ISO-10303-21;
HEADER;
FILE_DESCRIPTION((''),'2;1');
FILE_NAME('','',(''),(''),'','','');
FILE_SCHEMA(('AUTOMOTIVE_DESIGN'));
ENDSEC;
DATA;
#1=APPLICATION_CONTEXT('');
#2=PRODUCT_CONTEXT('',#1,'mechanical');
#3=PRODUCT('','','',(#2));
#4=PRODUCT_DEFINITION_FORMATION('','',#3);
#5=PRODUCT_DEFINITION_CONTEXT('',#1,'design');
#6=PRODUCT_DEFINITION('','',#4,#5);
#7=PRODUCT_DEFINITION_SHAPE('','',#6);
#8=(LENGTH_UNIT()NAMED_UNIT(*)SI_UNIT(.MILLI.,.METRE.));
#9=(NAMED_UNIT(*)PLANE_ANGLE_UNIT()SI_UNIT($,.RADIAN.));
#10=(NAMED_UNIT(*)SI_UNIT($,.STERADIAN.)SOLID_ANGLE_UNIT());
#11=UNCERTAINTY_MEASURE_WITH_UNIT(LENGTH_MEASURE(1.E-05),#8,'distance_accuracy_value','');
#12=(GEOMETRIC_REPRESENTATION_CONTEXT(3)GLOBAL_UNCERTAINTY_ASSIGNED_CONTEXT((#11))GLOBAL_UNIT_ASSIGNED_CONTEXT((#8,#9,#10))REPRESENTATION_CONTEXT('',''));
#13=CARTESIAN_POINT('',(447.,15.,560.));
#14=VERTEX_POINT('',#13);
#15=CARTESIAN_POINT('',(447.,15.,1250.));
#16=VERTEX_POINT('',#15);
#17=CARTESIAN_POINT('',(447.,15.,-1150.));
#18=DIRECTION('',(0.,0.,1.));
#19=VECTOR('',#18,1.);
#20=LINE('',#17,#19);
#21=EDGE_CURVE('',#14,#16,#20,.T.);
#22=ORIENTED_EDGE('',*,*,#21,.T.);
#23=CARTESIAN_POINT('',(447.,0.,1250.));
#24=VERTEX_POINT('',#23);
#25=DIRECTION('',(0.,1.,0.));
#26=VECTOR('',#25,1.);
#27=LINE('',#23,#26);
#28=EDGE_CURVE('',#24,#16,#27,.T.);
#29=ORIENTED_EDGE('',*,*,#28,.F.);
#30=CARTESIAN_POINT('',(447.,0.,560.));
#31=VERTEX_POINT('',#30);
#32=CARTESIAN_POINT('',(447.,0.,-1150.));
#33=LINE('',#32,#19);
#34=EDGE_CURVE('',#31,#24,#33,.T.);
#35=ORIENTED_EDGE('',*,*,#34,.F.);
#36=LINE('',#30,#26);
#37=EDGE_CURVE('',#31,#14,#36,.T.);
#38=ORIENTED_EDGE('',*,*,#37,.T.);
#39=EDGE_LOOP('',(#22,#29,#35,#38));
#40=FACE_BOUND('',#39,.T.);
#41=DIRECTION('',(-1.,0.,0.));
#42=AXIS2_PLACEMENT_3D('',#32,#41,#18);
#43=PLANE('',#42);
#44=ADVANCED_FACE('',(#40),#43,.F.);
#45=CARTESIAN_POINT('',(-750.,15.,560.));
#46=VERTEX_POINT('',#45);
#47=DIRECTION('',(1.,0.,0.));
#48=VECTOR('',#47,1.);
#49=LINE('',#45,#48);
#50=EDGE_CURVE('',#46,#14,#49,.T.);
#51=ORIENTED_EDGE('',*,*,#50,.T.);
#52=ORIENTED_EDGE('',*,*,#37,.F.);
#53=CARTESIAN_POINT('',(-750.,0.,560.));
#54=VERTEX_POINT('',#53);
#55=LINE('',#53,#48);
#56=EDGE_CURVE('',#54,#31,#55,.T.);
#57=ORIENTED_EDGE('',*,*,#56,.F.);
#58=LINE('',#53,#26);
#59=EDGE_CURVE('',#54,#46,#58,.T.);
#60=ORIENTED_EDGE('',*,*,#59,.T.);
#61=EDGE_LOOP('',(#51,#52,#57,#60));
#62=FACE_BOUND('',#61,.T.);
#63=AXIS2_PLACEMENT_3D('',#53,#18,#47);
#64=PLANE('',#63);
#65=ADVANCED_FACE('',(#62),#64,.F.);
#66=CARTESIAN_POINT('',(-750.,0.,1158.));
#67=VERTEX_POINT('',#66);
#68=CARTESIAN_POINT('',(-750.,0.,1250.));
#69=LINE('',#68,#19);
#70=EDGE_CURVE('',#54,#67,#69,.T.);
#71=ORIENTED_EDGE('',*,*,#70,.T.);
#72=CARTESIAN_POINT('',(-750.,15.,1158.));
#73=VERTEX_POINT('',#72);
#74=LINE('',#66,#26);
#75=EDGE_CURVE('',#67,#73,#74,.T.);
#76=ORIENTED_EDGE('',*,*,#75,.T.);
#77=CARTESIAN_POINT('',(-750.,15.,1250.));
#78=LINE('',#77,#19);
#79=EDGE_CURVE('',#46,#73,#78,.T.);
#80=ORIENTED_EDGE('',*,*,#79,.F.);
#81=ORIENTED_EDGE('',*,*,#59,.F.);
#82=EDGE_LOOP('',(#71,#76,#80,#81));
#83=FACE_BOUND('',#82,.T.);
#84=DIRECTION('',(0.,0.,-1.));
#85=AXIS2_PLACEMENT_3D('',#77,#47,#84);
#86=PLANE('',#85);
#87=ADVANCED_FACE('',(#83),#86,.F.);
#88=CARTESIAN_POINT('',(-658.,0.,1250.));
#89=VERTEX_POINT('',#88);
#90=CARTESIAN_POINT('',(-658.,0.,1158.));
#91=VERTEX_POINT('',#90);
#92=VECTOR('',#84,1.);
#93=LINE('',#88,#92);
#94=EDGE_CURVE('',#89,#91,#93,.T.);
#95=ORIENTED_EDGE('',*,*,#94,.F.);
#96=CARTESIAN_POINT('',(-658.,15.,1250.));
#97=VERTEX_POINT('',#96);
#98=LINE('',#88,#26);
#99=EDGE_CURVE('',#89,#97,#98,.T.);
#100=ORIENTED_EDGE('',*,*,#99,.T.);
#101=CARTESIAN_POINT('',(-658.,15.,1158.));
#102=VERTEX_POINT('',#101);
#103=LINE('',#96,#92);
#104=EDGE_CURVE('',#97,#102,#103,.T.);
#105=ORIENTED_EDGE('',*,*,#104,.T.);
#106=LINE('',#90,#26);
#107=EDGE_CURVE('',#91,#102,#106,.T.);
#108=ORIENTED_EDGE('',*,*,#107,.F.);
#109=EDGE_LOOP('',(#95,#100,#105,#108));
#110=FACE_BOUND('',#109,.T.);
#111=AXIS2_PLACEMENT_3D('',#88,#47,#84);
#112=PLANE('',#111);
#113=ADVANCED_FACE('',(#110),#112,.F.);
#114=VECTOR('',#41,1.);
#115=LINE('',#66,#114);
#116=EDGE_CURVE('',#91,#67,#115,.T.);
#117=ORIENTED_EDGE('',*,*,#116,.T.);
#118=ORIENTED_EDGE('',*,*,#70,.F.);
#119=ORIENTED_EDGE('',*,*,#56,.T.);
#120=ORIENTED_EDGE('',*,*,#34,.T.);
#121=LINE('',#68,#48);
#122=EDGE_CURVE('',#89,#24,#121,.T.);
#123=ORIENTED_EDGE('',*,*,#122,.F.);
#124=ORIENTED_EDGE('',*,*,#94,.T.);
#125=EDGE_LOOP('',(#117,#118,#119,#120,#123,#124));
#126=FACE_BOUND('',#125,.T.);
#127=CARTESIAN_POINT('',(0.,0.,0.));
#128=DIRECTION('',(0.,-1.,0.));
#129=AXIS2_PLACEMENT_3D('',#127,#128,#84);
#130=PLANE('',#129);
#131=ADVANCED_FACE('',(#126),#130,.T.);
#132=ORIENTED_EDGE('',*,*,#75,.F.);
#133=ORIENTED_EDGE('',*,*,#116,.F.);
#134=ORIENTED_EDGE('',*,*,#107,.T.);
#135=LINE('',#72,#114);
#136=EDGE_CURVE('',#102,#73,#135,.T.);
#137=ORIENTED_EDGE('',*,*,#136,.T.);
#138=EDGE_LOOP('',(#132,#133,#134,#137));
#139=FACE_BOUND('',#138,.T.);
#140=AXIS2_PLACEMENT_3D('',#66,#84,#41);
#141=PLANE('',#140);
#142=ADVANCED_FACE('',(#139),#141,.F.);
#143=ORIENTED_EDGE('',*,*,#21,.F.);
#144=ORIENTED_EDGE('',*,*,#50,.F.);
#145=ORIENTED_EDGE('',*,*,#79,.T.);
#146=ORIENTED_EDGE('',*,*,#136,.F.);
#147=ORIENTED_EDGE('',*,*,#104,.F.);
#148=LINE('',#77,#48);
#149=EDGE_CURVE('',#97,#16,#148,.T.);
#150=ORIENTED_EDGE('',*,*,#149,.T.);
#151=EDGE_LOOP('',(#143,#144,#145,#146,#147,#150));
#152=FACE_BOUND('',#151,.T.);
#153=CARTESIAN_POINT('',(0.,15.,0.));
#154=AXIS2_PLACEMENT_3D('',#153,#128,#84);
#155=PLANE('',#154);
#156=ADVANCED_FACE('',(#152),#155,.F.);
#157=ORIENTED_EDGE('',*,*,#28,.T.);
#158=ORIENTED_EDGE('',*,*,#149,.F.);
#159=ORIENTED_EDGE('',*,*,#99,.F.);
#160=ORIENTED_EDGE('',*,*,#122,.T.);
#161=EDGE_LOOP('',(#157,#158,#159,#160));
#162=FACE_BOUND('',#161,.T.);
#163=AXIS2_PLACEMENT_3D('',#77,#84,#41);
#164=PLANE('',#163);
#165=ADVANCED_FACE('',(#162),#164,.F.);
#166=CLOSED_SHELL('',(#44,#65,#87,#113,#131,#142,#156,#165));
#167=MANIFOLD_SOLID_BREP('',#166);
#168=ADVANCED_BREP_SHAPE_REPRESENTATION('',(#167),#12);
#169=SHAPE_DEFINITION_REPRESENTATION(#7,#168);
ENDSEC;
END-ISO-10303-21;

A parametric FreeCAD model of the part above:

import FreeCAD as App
import Part
import Sketcher
from FreeCAD import Vector
Q = App.Units.Quantity


def add_polygon(sketch, points):
    """Adds a closed chain of lines whose ends are joined by coincident constraints."""
    first, n = sketch.GeometryCount, len(points)
    for a, b in zip(points, points[1:] + points[:1]):
        sketch.addGeometry(Part.LineSegment(App.Vector(*a, 0), App.Vector(*b, 0)), False)
    for i in range(n):
        sketch.addConstraint(Sketcher.Constraint("Coincident", first + i, 2, first + (i + 1) % n, 1))

doc = App.newDocument("Part")
body = doc.addObject("PartDesign::Body", "Body")

# Sketch on XZ plane
sketch1 = doc.addObject("Sketcher::SketchObject", "Sketch")
body.addObject(sketch1)
sketch1.AttachmentSupport = (doc.XZ_Plane, [""])
sketch1.MapMode = "FlatFace"
add_polygon(sketch1, [(-750, -1250), (-750, 1250), (750, 1250), (750, -1250)])  # lines 0-3
sketch1.addConstraint([
    Sketcher.Constraint("Vertical", 0),
    Sketcher.Constraint("Horizontal", 1),
    Sketcher.Constraint("Vertical", 2),
    Sketcher.Constraint("Horizontal", 3),
    Sketcher.Constraint("Symmetric", 0, 2, 2, 2, -1, 1),
    Sketcher.Constraint("DistanceX", 1, 1, 1, 2, Q("1500 mm")),
    Sketcher.Constraint("DistanceY", 0, 1, 0, 2, Q("2500 mm")),
])
pad1 = doc.addObject("PartDesign::Pad", "Pad")
body.addObject(pad1)
pad1.Profile = sketch1
pad1.Length = 15
pad1.Reversed = True

# Sketch on XZ plane
sketch2 = doc.addObject("Sketcher::SketchObject", "Sketch001")
body.addObject(sketch2)
sketch2.AttachmentSupport = (doc.XZ_Plane, [""])
sketch2.MapMode = "FlatFace"
sketch2.AttachmentOffset = App.Placement(Vector(0, 0, -15), App.Rotation())
add_polygon(sketch2, [(-750, -1150), (447, -1150), (447, 1250), (750, 1250), (750, -1250), (-750, -1250)])  # lines 0-5
sketch2.addConstraint([
    Sketcher.Constraint("Horizontal", 0),
    Sketcher.Constraint("Vertical", 1),
    Sketcher.Constraint("Horizontal", 2),
    Sketcher.Constraint("Vertical", 3),
    Sketcher.Constraint("Horizontal", 4),
    Sketcher.Constraint("Vertical", 5),
    Sketcher.Constraint("Symmetric", 2, 2, 4, 2, -1, 1),
    Sketcher.Constraint("DistanceX", 0, 1, 0, 2, Q("1197 mm")),
    Sketcher.Constraint("DistanceX", 2, 1, 2, 2, Q("303 mm")),
    Sketcher.Constraint("DistanceY", 1, 1, 1, 2, Q("2400 mm")),
    Sketcher.Constraint("DistanceY", 3, 2, 3, 1, Q("2500 mm")),
])
pocket1 = doc.addObject("PartDesign::Pocket", "Pocket")
body.addObject(pocket1)
pocket1.Profile = sketch2
pocket1.Type = "ThroughAll"
pocket1.Reversed = True

# Sketch on XZ plane
sketch3 = doc.addObject("Sketcher::SketchObject", "Sketch002")
body.addObject(sketch3)
sketch3.AttachmentSupport = (doc.XZ_Plane, [""])
sketch3.MapMode = "FlatFace"
sketch3.AttachmentOffset = App.Placement(Vector(0, 0, -15), App.Rotation())
add_polygon(sketch3, [(-750, -1150), (-750, 560), (447, 560), (447, -1150)])  # lines 0-3
sketch3.addConstraint([
    Sketcher.Constraint("Vertical", 0),
    Sketcher.Constraint("Horizontal", 1),
    Sketcher.Constraint("Vertical", 2),
    Sketcher.Constraint("Horizontal", 3),
    Sketcher.Constraint("DistanceX", 1, 1, 1, 2, Q("1197 mm")),
    Sketcher.Constraint("DistanceY", 0, 1, 0, 2, Q("1710 mm")),
    Sketcher.Constraint("DistanceX", 0, 2, -1, 1, Q("750 mm")),
    Sketcher.Constraint("DistanceY", -1, 1, 0, 2, Q("560 mm")),
])
pocket2 = doc.addObject("PartDesign::Pocket", "Pocket001")
body.addObject(pocket2)
pocket2.Profile = sketch3
pocket2.Type = "ThroughAll"
pocket2.Reversed = True

# Sketch on XZ plane
sketch4 = doc.addObject("Sketcher::SketchObject", "Sketch003")
body.addObject(sketch4)
sketch4.AttachmentSupport = (doc.XZ_Plane, [""])
sketch4.MapMode = "FlatFace"
sketch4.AttachmentOffset = App.Placement(Vector(0, 0, -15), App.Rotation())
add_polygon(sketch4, [(-750, 1158), (-750, 1250), (-658, 1250), (-658, 1158)])  # lines 0-3
sketch4.addConstraint([
    Sketcher.Constraint("Vertical", 0),
    Sketcher.Constraint("Horizontal", 1),
    Sketcher.Constraint("Vertical", 2),
    Sketcher.Constraint("Horizontal", 3),
    Sketcher.Constraint("Equal", 3, 0),
    Sketcher.Constraint("DistanceX", 1, 1, 1, 2, Q("92 mm")),
    Sketcher.Constraint("DistanceX", 0, 2, -1, 1, Q("750 mm")),
    Sketcher.Constraint("DistanceY", -1, 1, 0, 2, Q("1250 mm")),
])
pocket3 = doc.addObject("PartDesign::Pocket", "Pocket002")
body.addObject(pocket3)
pocket3.Profile = sketch4
pocket3.Type = "ThroughAll"
pocket3.Reversed = True

doc.recompute()
